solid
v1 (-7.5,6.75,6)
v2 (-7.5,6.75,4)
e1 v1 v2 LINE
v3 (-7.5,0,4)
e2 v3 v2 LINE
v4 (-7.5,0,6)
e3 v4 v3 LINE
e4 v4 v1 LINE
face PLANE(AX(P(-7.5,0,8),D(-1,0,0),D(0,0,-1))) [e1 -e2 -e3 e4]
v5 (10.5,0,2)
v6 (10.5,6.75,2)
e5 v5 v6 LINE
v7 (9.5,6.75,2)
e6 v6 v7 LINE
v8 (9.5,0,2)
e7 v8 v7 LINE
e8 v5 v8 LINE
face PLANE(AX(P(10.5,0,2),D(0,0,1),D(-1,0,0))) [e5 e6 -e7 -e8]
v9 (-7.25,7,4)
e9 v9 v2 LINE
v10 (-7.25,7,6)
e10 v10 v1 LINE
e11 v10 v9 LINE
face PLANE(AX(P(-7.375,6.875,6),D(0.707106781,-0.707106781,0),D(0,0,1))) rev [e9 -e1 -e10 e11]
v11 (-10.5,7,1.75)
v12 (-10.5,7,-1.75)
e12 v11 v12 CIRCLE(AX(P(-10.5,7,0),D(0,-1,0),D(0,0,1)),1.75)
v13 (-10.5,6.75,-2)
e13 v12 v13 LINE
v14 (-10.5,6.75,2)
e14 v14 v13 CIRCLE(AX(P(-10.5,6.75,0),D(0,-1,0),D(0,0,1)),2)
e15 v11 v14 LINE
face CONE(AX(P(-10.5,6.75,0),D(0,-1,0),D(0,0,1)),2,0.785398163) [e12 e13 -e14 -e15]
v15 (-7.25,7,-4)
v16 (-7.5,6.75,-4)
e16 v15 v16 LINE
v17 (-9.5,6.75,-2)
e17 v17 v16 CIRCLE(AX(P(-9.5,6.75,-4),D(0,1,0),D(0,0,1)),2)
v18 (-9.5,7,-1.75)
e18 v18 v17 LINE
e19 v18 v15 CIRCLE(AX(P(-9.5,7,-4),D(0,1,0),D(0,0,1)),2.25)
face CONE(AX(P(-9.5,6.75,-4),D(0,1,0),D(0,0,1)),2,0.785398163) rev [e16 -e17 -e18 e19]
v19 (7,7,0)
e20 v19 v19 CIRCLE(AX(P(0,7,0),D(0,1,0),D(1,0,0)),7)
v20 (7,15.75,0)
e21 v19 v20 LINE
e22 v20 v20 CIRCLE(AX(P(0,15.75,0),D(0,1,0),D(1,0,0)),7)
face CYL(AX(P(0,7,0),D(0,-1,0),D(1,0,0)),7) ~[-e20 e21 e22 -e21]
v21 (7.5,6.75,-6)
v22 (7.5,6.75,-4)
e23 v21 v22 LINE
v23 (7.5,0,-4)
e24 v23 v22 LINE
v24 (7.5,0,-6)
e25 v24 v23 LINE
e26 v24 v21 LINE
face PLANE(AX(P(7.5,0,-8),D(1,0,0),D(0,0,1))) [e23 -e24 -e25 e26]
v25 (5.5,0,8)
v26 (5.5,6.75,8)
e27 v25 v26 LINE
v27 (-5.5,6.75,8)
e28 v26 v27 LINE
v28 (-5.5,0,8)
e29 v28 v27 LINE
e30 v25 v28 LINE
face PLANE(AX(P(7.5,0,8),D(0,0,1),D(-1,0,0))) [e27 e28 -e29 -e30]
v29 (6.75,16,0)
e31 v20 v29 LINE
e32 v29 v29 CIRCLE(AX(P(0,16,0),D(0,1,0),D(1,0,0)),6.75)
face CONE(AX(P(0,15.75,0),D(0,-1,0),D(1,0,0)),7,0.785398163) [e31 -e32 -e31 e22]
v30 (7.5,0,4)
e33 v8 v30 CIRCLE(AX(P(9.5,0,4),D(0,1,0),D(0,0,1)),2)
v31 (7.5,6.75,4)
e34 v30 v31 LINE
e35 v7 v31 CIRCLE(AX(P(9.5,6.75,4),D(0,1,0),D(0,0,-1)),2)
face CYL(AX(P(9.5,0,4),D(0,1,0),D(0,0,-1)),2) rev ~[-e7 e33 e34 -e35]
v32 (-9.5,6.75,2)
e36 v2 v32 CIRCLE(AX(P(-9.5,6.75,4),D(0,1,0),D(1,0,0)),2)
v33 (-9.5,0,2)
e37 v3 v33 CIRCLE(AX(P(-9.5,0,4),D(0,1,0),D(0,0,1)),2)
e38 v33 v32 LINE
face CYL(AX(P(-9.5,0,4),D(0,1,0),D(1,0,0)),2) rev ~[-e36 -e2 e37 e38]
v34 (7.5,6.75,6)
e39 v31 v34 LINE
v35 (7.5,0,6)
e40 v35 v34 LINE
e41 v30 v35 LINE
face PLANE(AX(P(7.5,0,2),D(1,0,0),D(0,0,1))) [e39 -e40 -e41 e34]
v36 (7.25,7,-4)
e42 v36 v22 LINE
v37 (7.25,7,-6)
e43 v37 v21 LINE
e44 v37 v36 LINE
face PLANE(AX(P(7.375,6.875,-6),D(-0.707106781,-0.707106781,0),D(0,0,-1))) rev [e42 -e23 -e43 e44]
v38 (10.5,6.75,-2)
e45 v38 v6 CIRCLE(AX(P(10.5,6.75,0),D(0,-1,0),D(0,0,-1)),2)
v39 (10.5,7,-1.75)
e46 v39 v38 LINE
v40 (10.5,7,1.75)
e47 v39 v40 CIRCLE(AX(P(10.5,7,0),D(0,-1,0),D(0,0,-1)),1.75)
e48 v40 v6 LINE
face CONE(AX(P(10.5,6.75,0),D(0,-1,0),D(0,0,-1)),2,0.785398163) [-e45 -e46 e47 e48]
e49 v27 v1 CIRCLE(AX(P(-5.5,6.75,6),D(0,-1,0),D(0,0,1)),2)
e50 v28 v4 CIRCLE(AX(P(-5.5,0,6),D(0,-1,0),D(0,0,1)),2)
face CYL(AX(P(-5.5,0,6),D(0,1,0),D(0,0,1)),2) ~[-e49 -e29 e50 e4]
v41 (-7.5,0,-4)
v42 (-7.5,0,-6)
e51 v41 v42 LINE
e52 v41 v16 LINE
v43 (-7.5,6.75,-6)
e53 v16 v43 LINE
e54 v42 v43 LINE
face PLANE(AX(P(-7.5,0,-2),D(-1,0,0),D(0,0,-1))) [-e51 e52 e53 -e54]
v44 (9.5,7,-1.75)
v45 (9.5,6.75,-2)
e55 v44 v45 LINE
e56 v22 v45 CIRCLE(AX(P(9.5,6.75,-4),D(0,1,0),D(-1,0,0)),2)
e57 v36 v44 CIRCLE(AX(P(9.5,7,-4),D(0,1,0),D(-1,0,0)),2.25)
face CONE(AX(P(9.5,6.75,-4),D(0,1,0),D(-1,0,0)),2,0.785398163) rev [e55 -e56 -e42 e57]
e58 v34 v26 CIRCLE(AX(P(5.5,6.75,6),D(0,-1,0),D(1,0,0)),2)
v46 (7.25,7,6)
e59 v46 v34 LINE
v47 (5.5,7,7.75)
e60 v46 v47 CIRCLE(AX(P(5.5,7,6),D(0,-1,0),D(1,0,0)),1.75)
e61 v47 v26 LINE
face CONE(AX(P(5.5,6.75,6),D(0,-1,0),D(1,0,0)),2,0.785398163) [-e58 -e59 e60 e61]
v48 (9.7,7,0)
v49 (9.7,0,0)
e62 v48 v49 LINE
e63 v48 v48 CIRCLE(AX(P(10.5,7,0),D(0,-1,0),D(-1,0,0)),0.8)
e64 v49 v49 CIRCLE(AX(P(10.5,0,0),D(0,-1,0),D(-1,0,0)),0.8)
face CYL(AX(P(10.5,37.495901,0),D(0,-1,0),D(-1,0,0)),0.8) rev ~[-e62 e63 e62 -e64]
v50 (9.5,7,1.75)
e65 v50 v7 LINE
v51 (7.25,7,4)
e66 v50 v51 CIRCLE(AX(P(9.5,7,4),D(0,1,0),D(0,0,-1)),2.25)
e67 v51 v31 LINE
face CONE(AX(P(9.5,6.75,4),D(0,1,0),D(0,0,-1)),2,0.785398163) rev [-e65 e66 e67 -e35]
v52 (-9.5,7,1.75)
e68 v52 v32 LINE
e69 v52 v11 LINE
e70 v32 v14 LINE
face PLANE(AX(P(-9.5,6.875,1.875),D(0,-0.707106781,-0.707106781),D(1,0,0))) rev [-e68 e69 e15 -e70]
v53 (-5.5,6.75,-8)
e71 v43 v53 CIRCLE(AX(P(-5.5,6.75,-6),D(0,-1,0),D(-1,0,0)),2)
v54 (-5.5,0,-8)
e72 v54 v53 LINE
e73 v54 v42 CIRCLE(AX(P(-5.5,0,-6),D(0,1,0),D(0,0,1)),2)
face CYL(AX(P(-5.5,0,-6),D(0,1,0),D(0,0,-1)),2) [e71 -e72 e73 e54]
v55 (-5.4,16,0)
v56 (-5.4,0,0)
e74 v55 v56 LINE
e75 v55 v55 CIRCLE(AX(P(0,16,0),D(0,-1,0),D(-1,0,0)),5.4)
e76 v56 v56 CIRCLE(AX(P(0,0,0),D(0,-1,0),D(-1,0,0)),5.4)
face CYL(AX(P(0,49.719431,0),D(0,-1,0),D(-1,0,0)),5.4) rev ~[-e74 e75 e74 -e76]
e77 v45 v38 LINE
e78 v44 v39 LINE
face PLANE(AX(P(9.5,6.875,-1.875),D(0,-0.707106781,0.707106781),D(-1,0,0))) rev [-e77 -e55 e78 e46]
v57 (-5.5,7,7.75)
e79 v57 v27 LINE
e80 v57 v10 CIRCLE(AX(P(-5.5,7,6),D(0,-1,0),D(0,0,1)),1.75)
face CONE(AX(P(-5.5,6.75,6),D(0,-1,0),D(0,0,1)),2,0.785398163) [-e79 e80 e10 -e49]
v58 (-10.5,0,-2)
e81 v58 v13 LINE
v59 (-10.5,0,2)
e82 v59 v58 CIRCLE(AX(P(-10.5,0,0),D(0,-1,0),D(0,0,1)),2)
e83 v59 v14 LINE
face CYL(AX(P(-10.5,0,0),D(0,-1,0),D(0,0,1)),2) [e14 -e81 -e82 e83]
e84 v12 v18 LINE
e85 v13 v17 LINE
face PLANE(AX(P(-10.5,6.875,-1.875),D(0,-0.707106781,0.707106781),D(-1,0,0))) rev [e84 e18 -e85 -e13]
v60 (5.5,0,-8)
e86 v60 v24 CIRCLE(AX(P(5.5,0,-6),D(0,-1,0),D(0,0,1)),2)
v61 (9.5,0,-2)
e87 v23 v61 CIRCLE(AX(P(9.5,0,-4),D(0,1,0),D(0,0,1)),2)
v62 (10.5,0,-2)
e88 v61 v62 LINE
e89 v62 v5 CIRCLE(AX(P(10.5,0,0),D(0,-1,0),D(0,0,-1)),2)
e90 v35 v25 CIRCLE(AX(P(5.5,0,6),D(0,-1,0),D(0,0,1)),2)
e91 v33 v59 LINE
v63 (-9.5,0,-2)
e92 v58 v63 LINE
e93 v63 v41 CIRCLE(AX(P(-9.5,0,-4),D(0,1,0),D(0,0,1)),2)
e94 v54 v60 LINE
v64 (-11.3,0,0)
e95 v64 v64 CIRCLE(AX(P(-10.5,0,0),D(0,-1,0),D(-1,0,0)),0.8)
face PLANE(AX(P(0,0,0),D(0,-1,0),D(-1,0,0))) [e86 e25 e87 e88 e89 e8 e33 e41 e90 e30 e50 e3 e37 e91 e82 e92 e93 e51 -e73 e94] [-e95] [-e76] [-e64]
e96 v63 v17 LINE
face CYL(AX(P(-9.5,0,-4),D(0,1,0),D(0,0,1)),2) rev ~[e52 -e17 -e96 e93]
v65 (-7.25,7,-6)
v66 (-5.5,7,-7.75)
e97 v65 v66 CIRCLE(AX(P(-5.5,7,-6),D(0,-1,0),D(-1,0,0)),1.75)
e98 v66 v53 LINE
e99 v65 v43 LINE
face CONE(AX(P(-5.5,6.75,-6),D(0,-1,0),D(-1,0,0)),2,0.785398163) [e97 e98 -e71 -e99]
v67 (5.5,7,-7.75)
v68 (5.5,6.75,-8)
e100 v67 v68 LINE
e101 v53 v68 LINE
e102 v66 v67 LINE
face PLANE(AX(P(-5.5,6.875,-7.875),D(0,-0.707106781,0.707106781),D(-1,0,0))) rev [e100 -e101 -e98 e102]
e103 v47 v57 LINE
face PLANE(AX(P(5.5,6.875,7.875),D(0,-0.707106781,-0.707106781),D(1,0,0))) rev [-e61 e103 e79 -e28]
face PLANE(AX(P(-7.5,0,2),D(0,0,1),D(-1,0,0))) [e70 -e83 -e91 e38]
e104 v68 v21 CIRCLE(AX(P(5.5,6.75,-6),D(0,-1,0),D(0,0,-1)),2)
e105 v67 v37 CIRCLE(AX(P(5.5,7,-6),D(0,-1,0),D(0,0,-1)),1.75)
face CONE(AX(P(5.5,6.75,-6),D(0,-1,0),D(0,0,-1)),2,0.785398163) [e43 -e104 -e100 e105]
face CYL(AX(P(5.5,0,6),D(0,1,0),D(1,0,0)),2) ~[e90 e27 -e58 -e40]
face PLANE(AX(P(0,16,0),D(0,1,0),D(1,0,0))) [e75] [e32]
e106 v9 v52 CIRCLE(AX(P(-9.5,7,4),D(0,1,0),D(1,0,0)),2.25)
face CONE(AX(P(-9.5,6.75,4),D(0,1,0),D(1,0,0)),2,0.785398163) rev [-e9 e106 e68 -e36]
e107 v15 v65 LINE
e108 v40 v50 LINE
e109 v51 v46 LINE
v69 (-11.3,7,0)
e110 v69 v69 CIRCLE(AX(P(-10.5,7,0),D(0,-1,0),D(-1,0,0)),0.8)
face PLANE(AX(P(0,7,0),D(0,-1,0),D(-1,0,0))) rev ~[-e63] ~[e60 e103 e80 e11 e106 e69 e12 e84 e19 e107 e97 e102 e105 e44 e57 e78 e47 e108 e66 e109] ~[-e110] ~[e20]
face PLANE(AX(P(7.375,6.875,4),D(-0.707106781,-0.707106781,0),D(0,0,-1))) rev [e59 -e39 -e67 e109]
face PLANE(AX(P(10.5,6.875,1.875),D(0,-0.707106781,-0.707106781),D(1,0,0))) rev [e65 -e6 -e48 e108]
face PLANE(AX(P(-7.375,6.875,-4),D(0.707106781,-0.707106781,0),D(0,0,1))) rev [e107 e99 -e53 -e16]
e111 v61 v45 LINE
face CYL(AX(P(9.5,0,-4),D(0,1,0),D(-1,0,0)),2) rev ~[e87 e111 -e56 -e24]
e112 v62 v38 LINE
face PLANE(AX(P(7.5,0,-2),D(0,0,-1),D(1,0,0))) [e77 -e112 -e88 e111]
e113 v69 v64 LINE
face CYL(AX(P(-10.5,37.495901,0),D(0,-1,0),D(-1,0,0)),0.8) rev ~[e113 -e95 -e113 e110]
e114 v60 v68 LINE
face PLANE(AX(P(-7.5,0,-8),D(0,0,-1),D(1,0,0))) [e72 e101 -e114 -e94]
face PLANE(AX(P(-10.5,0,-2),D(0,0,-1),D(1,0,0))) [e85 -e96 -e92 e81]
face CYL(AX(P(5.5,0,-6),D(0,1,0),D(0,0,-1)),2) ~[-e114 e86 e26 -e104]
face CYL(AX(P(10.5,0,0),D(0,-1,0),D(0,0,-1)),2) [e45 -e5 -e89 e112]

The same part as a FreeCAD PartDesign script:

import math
import FreeCAD as App
import Part
import Sketcher
from FreeCAD import Vector


def edges_at(feature, points):
    """Names of the edges that pass closest to the given points."""
    edges = feature.Shape.Edges
    near = lambda p: min(range(len(edges)), key=lambda i: edges[i].distToShape(Part.Vertex(*p))[0])
    return sorted({f"Edge{near(p) + 1}" for p in points})

doc = App.newDocument("Part")
body = doc.addObject("PartDesign::Body", "Body")

# Sketch on XZ plane
sketch1 = body.newObject("Sketcher::SketchObject", "Sketch")
sketch1.AttachmentSupport = (doc.getObject("XZ_Plane"), [""])
sketch1.MapMode = "FlatFace"
sketch1.addGeometry([
    Part.LineSegment(Vector(7.5, -8, 0), Vector(-7.5, -8, 0)),  # 0
    Part.LineSegment(Vector(-7.5, -8, 0), Vector(-7.5, -2, 0)),  # 1
    Part.LineSegment(Vector(-7.5, -2, 0), Vector(-10.5, -2, 0)),  # 2
    Part.ArcOfCircle(Part.Circle(Vector(-10.5, 0, 0), Vector(0, 0, 1), 2), math.radians(90), math.radians(270)),  # 3
    Part.LineSegment(Vector(-10.5, 2, 0), Vector(-7.5, 2, 0)),  # 4
    Part.LineSegment(Vector(-7.5, 2, 0), Vector(-7.5, 8, 0)),  # 5
    Part.LineSegment(Vector(-7.5, 8, 0), Vector(7.5, 8, 0)),  # 6
    Part.LineSegment(Vector(7.5, 8, 0), Vector(7.5, 2, 0)),  # 7
    Part.LineSegment(Vector(7.5, 2, 0), Vector(10.5, 2, 0)),  # 8
    Part.ArcOfCircle(Part.Circle(Vector(10.5, 0, 0), Vector(0, 0, 1), 2), math.radians(-90), math.radians(90)),  # 9
    Part.LineSegment(Vector(10.5, -2, 0), Vector(7.5, -2, 0)),  # 10
    Part.LineSegment(Vector(7.5, -2, 0), Vector(7.5, -8, 0)),  # 11
], False)
sketch1.addConstraint([
    Sketcher.Constraint("Coincident", 0, 2, 1, 1),
    Sketcher.Constraint("Coincident", 1, 2, 2, 1),
    Sketcher.Constraint("Tangent", 2, 2, 3, 2),
    Sketcher.Constraint("Tangent", 3, 1, 4, 1),
    Sketcher.Constraint("Coincident", 4, 2, 5, 1),
    Sketcher.Constraint("Coincident", 5, 2, 6, 1),
    Sketcher.Constraint("Coincident", 6, 2, 7, 1),
    Sketcher.Constraint("Coincident", 7, 2, 8, 1),
    Sketcher.Constraint("Tangent", 8, 2, 9, 2),
    Sketcher.Constraint("Tangent", 9, 1, 10, 1),
    Sketcher.Constraint("Coincident", 10, 2, 11, 1),
    Sketcher.Constraint("Coincident", 11, 2, 0, 1),
    Sketcher.Constraint("Horizontal", 0),
    Sketcher.Constraint("Vertical", 1),
    Sketcher.Constraint("Horizontal", 2),
    Sketcher.Constraint("Horizontal", 4),
    Sketcher.Constraint("Vertical", 5),
    Sketcher.Constraint("Horizontal", 6),
    Sketcher.Constraint("Vertical", 7),
    Sketcher.Constraint("Horizontal", 8),
    Sketcher.Constraint("Horizontal", 10),
    Sketcher.Constraint("Vertical", 11),
    Sketcher.Constraint("Equal", 3, 9),
    Sketcher.Constraint("Symmetric", 3, 3, 9, 3, -1, 1),
    Sketcher.Constraint("Symmetric", 0, 2, 6, 2, -1, 1),
    Sketcher.Constraint("Symmetric", 4, 2, 7, 2, -2),
    Sketcher.Constraint("Vertical", 7, 2, 10, 2),
    Sketcher.Constraint("Radius", 3, 2.0),
    Sketcher.Constraint("DistanceX", 0, 2, 0, 1, 15.0),
    Sketcher.Constraint("DistanceX", 2, 2, 2, 1, 3.0),
    Sketcher.Constraint("DistanceY", 1, 1, 1, 2, 6.0),
])
pad1 = body.newObject("PartDesign::Pad", "Pad")
pad1.Profile = sketch1
pad1.Length = 7
pad1.Reversed = True
doc.recompute()

fillet = body.newObject("PartDesign::Fillet", "Fillet")
fillet.Base = (pad1, edges_at(pad1, [
    (7.5, 3.5, 8),
    (-7.5, 3.5, 8),
    (-7.5, 3.5, 2),
    (-7.5, 3.5, -2),
    (-7.5, 3.5, -8),
    (7.5, 3.5, -8),
    (7.5, 3.5, -2),
    (7.5, 3.5, 2),
]))
fillet.Radius = 2

# Sketch on XZ plane
sketch2 = body.newObject("Sketcher::SketchObject", "Sketch001")
sketch2.AttachmentSupport = (doc.getObject("XZ_Plane"), [""])
sketch2.MapMode = "FlatFace"
sketch2.AttachmentOffset = App.Placement(Vector(0, 0, -7), App.Rotation())
sketch2.addGeometry([
    Part.Circle(Vector(10.5, 0, 0), Vector(0, 0, 1), 0.8),
    Part.Circle(Vector(-10.5, 0, 0), Vector(0, 0, 1), 0.8),
], False)
sketch2.addConstraint([
    Sketcher.Constraint("Equal", 0, 1),
    Sketcher.Constraint("Symmetric", 0, 3, 1, 3, -1, 1),
    Sketcher.Constraint("PointOnObject", 0, 3, -1),
    Sketcher.Constraint("Diameter", 0, 1.6),
    Sketcher.Constraint("DistanceX", 1, 3, 0, 3, 21.0),
])
doc.recompute()
hole = body.newObject("PartDesign::Hole", "Hole")
hole.Profile = sketch2
hole.ThreadType = "None"
hole.Diameter = 1.6
hole.DepthType = "ThroughAll"
hole.Reversed = True
doc.recompute()

chamfer = body.newObject("PartDesign::Chamfer", "Chamfer")
chamfer.Base = (hole, edges_at(hole, [
    (12.5, 7, 0),
    (10, 7, -2),
    (-12.5, 7, 0),
    (-10, 7, 2),
    (7.5, 7, -5),
    (0, 7, -8),
    (7.5, 7, 5),
    (10, 7, 2),
    (-7.5, 7, -5),
    (-10, 7, -2),
    (-7.5, 7, 5),
    (0, 7, 8),
    (6.914, 7, 7.414),
    (-6.914, 7, 7.414),
    (-6.914, 7, -7.414),
    (6.914, 7, -7.414),
    (8.086, 7, -2.586),
    (-8.086, 7, -2.586),
    (-8.086, 7, 2.586),
    (8.086, 7, 2.586),
]))
chamfer.Size = 0.25

# Sketch on XZ plane
sketch3 = body.newObject("Sketcher::SketchObject", "Sketch002")
sketch3.AttachmentSupport = (doc.getObject("XZ_Plane"), [""])
sketch3.MapMode = "FlatFace"
sketch3.AttachmentOffset = App.Placement(Vector(0, 0, -7), App.Rotation())
sketch3.addGeometry(Part.Circle(Vector(0, 0, 0), Vector(0, 0, 1), 7), False)
sketch3.addConstraint([
    Sketcher.Constraint("Coincident", 0, 3, -1, 1),
    Sketcher.Constraint("Diameter", 0, 14.0),
])
pad2 = body.newObject("PartDesign::Pad", "Pad001")
pad2.Profile = sketch3
pad2.Length = 9
pad2.Reversed = True
doc.recompute()

chamfer2 = body.newObject("PartDesign::Chamfer", "Chamfer001")
chamfer2.Base = (pad2, edges_at(pad2, [(-7, 16, 0)]))
chamfer2.Size = 0.25

# Sketch on XZ plane
sketch4 = body.newObject("Sketcher::SketchObject", "Sketch003")
sketch4.AttachmentSupport = (doc.getObject("XZ_Plane"), [""])
sketch4.MapMode = "FlatFace"
sketch4.AttachmentOffset = App.Placement(Vector(0, 0, -16), App.Rotation())
sketch4.addGeometry(Part.Circle(Vector(0, 0, 0), Vector(0, 0, 1), 5), False)
sketch4.addConstraint([
    Sketcher.Constraint("Coincident", 0, 3, -1, 1),
    Sketcher.Constraint("Diameter", 0, 10.8),
])
doc.recompute()
hole2 = body.newObject("PartDesign::Hole", "Hole001")
hole2.Profile = sketch4
hole2.ThreadType = "None"
hole2.Diameter = 10.8
hole2.DepthType = "ThroughAll"
hole2.Reversed = True

doc.recompute()
